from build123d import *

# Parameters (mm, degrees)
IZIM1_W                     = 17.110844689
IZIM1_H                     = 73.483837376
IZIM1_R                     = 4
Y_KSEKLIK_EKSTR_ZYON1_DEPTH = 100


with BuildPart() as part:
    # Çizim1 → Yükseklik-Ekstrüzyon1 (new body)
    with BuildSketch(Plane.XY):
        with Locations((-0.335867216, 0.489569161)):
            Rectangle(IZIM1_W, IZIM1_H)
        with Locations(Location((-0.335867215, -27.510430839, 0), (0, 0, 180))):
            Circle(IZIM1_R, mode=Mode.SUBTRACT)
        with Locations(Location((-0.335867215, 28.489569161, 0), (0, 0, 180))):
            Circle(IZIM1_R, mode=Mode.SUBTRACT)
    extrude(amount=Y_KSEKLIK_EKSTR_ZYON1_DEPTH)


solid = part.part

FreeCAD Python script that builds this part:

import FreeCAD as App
import Part
import Sketcher
from FreeCAD import Vector
Q = App.Units.Quantity

doc = App.newDocument("Part")
body = doc.addObject("PartDesign::Body", "Body")

sketch1 = body.newObject("Sketcher::SketchObject", "Sketch")
sketch1.AttachmentSupport = (doc.getObject("XY_Plane"), [""])
sketch1.MapMode = "FlatFace"
sketch1.addGeometry(Part.LineSegment(Vector(-8.9, 37.2, 0), Vector(-8.9, -36.3, 0)), False)
sketch1.addGeometry(Part.LineSegment(Vector(-8.9, -36.3, 0), Vector(8.2, -36.3, 0)), False)
sketch1.addGeometry(Part.LineSegment(Vector(8.2, -36.3, 0), Vector(8.2, 37.2, 0)), False)
sketch1.addGeometry(Part.LineSegment(Vector(8.2, 37.2, 0), Vector(-8.9, 37.2, 0)), False)
sketch1.addGeometry(Part.Circle(Vector(-0.3, -27.5, 0), Vector(0, 0, 1), 4), False)
sketch1.addGeometry(Part.Circle(Vector(-0.3, 28.5, 0), Vector(0, 0, 1), 4), False)
sketch1.addConstraint(Sketcher.Constraint("Coincident", 0, 2, 1, 1))
sketch1.addConstraint(Sketcher.Constraint("Coincident", 1, 2, 2, 1))
sketch1.addConstraint(Sketcher.Constraint("Coincident", 2, 2, 3, 1))
sketch1.addConstraint(Sketcher.Constraint("Coincident", 3, 2, 0, 1))
sketch1.addConstraint(Sketcher.Constraint("Vertical", 0))
sketch1.addConstraint(Sketcher.Constraint("Horizontal", 1))
sketch1.addConstraint(Sketcher.Constraint("Vertical", 2))
sketch1.addConstraint(Sketcher.Constraint("Horizontal", 3))
sketch1.addConstraint(Sketcher.Constraint("Equal", 4, 5))
sketch1.addConstraint(Sketcher.Constraint("Vertical", 4, 3, 5, 3))
sketch1.addConstraint(Sketcher.Constraint("Diameter", 4, Q("8 mm")))
sketch1.addConstraint(Sketcher.Constraint("DistanceY", 4, 3, 5, 3, Q("56 mm")))
sketch1.addConstraint(Sketcher.Constraint("DistanceX", 1, 1, 1, 2, Q("17.110845 mm")))
sketch1.addConstraint(Sketcher.Constraint("DistanceY", 0, 2, 0, 1, Q("73.483837 mm")))
sketch1.addConstraint(Sketcher.Constraint("DistanceY", 4, 3, -1, 1, Q("27.510431 mm")))
sketch1.addConstraint(Sketcher.Constraint("DistanceX", 0, 2, -1, 1, Q("8.89129 mm")))
sketch1.addConstraint(Sketcher.Constraint("DistanceY", 0, 2, -1, 1, Q("36.25235 mm")))
sketch1.addConstraint(Sketcher.Constraint("DistanceX", 4, 3, -1, 1, Q("0.335867 mm")))
pad1 = body.newObject("PartDesign::Pad", "Pad")
pad1.Profile = sketch1
pad1.Length = 100

doc.recompute()
